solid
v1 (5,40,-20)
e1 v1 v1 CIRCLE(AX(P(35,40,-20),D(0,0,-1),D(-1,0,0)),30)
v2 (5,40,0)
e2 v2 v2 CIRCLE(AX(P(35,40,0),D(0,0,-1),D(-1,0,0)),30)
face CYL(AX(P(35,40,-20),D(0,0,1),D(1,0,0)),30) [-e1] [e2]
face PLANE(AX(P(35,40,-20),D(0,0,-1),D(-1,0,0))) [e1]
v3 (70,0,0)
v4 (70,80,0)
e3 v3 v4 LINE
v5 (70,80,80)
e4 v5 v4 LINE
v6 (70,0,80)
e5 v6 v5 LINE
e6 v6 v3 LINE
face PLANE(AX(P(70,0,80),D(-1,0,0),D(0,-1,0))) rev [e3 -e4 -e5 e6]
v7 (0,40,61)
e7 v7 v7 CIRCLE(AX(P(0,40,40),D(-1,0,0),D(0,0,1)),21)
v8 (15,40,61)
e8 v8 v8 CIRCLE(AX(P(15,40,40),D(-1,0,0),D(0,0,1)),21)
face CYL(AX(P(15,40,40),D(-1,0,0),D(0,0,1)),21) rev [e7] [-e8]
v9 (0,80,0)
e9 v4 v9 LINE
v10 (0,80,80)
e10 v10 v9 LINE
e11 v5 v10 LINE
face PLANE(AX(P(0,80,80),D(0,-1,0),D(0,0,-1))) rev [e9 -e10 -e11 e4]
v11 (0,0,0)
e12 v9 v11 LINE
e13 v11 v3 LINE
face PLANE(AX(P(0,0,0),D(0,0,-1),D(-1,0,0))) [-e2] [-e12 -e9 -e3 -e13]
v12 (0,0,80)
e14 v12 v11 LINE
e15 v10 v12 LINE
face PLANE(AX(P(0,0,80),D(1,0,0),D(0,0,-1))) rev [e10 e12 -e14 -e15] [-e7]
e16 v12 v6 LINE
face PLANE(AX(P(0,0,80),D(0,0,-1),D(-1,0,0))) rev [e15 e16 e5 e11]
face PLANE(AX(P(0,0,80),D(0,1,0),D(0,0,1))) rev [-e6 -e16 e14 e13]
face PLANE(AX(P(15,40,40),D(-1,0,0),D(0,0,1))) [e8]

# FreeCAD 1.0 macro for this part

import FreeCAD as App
import Part
import Sketcher
from FreeCAD import Vector

doc = App.newDocument("Part")
params = doc.addObject("Spreadsheet::Sheet", "Params")
for row, (alias, value) in enumerate([
    ("sketch1_width", "70 mm"),
    ("sketch1_height", "80 mm"),
    ("pad1_length", "80 mm"),
    ("sketch2_diameter", "60 mm"),
    ("pad2_length", "20 mm"),
    ("sketch3_diameter", "42 mm"),
    ("pocket1_length", "15 mm"),
], start=1):
    params.set(f"A{row}", alias)
    params.set(f"B{row}", "=" + value)
    params.setAlias(f"B{row}", alias)

body = doc.addObject("PartDesign::Body", "Body")

# Sketch on XY plane
sketch1 = body.newObject("Sketcher::SketchObject", "Sketch")
sketch1.AttachmentSupport = (doc.getObject("XY_Plane"), [""])
sketch1.MapMode = "FlatFace"
sketch1.addGeometry([
    Part.LineSegment(Vector(0, 80, 0), Vector(0, 0, 0)),
    Part.LineSegment(Vector(0, 0, 0), Vector(70, 0, 0)),
    Part.LineSegment(Vector(70, 0, 0), Vector(70, 80, 0)),
    Part.LineSegment(Vector(70, 80, 0), Vector(0, 80, 0)),
], False)
sketch1.addConstraint([
    Sketcher.Constraint("Coincident", 0, 2, 1, 1),
    Sketcher.Constraint("Coincident", 1, 2, 2, 1),
    Sketcher.Constraint("Coincident", 2, 2, 3, 1),
    Sketcher.Constraint("Coincident", 3, 2, 0, 1),
    Sketcher.Constraint("Vertical", 0),
    Sketcher.Constraint("Horizontal", 1),
    Sketcher.Constraint("Vertical", 2),
    Sketcher.Constraint("Horizontal", 3),
    Sketcher.Constraint("Coincident", 0, 2, -1, 1),
    Sketcher.Constraint("DistanceX", 1, 1, 1, 2, 70.0),
    Sketcher.Constraint("DistanceY", 0, 2, 0, 1, 80.0),
])
sketch1.setExpression("Constraints[9]", "Params.sketch1_width")
sketch1.setExpression("Constraints[10]", "Params.sketch1_height")
pad1 = body.newObject("PartDesign::Pad", "Pad")
pad1.Profile = sketch1
pad1.setExpression("Length", "Params.pad1_length")

# Sketch on XY plane
sketch2 = body.newObject("Sketcher::SketchObject", "Sketch001")
sketch2.AttachmentSupport = (doc.getObject("XY_Plane"), [""])
sketch2.MapMode = "FlatFace"
sketch2.addGeometry(Part.Circle(Vector(35, 40, 0), Vector(0, 0, 1), 30), False)
sketch2.addConstraint([
    Sketcher.Constraint("Diameter", 0, 60.0),
    Sketcher.Constraint("DistanceX", -1, 1, 0, 3, 35.0),
    Sketcher.Constraint("DistanceY", -1, 1, 0, 3, 40.0),
])
sketch2.setExpression("Constraints[0]", "Params.sketch2_diameter")
pad2 = body.newObject("PartDesign::Pad", "Pad001")
pad2.Profile = sketch2
pad2.setExpression("Length", "Params.pad2_length")
pad2.Reversed = True

# Sketch on YZ plane
sketch3 = body.newObject("Sketcher::SketchObject", "Sketch002")
sketch3.AttachmentSupport = (doc.getObject("YZ_Plane"), [""])
sketch3.MapMode = "FlatFace"
sketch3.addGeometry(Part.Circle(Vector(40, 40, 0), Vector(0, 0, 1), 21), False)
sketch3.addConstraint([
    Sketcher.Constraint("Diameter", 0, 42.0),
    Sketcher.Constraint("DistanceX", -1, 1, 0, 3, 40.0),
    Sketcher.Constraint("DistanceY", -1, 1, 0, 3, 40.0),
])
sketch3.setExpression("Constraints[0]", "Params.sketch3_diameter")
pocket1 = body.newObject("PartDesign::Pocket", "Pocket")
pocket1.Profile = sketch3
pocket1.setExpression("Length", "Params.pocket1_length")
pocket1.Reversed = True

doc.recompute()
